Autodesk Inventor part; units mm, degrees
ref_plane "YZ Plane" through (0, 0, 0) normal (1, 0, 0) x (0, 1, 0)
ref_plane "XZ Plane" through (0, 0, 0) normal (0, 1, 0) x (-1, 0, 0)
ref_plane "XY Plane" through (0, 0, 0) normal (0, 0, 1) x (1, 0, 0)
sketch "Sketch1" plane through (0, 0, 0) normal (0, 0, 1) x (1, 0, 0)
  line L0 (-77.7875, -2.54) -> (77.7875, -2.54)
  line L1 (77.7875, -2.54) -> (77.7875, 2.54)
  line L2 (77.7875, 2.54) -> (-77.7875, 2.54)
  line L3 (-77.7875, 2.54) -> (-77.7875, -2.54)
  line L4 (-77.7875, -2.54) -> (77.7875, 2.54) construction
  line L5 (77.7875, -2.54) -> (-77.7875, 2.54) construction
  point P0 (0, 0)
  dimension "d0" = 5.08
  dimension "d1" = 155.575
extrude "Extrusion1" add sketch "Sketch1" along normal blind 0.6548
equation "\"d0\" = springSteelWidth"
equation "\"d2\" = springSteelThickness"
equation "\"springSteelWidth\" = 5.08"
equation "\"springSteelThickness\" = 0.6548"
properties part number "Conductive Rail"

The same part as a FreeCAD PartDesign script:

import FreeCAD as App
import Part
import Sketcher
Q = App.Units.Quantity


def add_polygon(sketch, points):
    """Adds a closed chain of lines whose ends are joined by coincident constraints."""
    first, n = sketch.GeometryCount, len(points)
    for a, b in zip(points, points[1:] + points[:1]):
        sketch.addGeometry(Part.LineSegment(App.Vector(*a, 0), App.Vector(*b, 0)), False)
    for i in range(n):
        sketch.addConstraint(Sketcher.Constraint("Coincident", first + i, 2, first + (i + 1) % n, 1))

doc = App.newDocument("Part")
body = doc.addObject("PartDesign::Body", "Body")

sketch1 = body.newObject("Sketcher::SketchObject", "Sketch")
sketch1.AttachmentSupport = (doc.getObject("XY_Plane"), [""])
sketch1.MapMode = "FlatFace"
add_polygon(sketch1, [(-78, 3), (-78, -3), (78, -3), (78, 3)])
sketch1.addConstraint([
    Sketcher.Constraint("Vertical", 0),
    Sketcher.Constraint("Horizontal", 1),
    Sketcher.Constraint("Vertical", 2),
    Sketcher.Constraint("Horizontal", 3),
    Sketcher.Constraint("Symmetric", 0, 2, 2, 2, -1, 1),
    Sketcher.Constraint("DistanceY", 0, 2, 0, 1, Q("0.2 in")),
    Sketcher.Constraint("DistanceX", 1, 1, 1, 2, Q("6.125 in")),
])
pad1 = body.newObject("PartDesign::Pad", "Pad")
pad1.Profile = sketch1
pad1.Length = 0.6548

doc.recompute()
